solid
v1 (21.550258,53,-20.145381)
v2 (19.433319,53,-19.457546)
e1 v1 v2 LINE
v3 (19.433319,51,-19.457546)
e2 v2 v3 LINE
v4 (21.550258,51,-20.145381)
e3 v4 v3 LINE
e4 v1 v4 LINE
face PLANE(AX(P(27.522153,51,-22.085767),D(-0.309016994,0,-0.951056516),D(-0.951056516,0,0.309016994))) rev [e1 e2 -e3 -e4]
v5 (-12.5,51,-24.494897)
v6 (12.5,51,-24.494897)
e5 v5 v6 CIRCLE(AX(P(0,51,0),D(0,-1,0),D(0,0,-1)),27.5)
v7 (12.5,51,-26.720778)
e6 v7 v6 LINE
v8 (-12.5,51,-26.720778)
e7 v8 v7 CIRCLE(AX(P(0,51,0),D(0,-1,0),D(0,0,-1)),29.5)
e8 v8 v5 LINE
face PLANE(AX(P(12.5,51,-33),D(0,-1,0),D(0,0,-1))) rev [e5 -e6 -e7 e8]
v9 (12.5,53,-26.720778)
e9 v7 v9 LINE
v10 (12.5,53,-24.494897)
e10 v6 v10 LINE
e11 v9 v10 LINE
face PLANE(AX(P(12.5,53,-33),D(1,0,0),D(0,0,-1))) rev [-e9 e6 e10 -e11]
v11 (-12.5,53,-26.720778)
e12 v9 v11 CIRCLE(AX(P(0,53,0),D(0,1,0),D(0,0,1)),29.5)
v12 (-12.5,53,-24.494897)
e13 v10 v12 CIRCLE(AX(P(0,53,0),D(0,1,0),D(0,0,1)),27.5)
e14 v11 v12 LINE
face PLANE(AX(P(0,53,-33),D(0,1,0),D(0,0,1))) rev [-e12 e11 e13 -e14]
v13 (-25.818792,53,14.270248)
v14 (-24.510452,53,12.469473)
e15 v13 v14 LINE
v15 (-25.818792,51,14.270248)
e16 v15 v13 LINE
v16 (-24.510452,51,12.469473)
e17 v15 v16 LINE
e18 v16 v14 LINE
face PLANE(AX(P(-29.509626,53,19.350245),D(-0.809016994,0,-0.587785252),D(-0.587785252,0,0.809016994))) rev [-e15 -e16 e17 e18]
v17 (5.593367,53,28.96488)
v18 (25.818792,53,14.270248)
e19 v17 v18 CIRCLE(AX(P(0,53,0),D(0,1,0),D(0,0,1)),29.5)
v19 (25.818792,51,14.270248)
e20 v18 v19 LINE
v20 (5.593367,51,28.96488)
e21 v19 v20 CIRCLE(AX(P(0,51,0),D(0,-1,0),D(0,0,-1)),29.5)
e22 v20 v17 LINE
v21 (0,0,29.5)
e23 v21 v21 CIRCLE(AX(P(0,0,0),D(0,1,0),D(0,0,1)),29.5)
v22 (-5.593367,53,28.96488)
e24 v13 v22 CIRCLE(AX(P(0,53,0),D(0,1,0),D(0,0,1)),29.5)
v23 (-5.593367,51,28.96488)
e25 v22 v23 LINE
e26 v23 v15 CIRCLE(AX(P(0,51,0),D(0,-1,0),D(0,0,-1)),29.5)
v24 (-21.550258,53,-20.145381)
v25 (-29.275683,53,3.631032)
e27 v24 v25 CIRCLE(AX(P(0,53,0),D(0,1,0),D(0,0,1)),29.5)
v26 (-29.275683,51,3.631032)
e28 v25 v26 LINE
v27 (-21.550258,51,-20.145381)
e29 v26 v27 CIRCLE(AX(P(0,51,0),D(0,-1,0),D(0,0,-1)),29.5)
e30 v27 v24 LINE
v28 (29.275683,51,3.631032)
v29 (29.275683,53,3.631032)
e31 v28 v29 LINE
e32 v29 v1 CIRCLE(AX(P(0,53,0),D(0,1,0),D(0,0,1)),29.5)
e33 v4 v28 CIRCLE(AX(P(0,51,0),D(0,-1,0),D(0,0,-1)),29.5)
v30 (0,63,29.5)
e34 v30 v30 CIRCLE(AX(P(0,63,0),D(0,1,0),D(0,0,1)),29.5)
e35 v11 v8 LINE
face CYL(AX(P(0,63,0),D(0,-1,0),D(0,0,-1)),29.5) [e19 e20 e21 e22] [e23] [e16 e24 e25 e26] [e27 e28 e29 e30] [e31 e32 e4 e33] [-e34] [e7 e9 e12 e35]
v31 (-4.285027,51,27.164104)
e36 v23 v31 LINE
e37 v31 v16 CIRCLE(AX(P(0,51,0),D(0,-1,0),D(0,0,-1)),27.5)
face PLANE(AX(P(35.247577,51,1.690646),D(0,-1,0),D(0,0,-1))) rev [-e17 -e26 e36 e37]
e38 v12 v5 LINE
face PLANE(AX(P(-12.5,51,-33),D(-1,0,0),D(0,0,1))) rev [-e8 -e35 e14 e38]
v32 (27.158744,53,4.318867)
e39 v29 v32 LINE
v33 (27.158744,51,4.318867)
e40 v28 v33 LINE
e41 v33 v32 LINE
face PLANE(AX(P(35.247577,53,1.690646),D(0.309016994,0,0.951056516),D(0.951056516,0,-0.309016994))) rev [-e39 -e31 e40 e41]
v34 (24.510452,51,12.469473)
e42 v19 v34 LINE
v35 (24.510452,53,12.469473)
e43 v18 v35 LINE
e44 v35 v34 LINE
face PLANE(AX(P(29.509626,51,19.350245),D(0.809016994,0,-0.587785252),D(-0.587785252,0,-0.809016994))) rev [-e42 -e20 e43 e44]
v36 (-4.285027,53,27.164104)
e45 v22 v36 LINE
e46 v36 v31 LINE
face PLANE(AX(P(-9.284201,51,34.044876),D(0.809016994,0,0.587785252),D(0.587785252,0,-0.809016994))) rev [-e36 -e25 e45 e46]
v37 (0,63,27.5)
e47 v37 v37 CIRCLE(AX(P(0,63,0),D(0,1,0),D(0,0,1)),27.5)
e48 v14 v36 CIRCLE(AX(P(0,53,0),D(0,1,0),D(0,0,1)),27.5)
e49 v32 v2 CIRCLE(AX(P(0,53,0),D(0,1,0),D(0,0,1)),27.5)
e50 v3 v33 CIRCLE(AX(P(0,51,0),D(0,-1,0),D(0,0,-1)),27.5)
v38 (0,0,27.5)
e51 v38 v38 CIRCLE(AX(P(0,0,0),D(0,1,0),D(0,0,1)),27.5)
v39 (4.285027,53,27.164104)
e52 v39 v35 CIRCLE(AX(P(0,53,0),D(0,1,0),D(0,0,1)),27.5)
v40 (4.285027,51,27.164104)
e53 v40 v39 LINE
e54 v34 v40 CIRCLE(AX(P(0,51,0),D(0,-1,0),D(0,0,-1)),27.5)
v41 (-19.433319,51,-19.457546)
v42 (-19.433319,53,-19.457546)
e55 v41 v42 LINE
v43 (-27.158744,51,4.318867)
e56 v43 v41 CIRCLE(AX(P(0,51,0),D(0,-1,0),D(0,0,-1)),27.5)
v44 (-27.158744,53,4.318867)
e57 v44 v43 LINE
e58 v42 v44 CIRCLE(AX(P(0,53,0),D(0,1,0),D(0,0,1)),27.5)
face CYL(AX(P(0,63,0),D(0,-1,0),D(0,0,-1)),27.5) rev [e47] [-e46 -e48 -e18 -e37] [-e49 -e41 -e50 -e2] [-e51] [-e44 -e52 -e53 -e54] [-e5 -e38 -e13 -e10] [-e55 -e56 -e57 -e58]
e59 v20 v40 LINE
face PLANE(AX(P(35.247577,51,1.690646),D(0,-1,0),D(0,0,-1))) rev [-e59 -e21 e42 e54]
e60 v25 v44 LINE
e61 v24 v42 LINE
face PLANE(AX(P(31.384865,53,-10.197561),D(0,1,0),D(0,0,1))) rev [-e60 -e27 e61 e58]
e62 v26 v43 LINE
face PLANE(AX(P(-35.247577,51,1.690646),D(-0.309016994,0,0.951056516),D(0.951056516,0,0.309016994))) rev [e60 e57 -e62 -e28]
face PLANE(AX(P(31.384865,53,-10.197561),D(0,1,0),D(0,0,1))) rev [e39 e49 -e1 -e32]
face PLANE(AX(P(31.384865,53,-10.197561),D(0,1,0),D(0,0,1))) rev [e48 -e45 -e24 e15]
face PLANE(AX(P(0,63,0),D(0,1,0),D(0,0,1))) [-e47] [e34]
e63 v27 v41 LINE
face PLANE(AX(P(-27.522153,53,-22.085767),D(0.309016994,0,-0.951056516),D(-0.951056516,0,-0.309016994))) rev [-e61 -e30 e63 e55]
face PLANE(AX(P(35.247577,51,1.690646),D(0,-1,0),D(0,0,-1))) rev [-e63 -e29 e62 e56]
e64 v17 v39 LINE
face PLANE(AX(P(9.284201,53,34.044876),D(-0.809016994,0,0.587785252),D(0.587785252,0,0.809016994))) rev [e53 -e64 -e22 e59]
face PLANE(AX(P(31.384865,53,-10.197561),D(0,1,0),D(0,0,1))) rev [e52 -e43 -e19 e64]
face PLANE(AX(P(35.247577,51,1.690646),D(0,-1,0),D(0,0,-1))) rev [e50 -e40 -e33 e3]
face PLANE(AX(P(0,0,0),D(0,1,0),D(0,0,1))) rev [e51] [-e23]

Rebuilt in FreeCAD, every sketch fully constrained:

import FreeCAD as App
import Part
import Sketcher
from FreeCAD import Vector

doc = App.newDocument("Part")
body = doc.addObject("PartDesign::Body", "Body")

# Sketch on XZ plane
sketch1 = body.newObject("Sketcher::SketchObject", "Sketch")
sketch1.AttachmentSupport = (doc.getObject("XZ_Plane"), [""])
sketch1.MapMode = "FlatFace"
sketch1.addGeometry(Part.Circle(Vector(0, 0, 0), Vector(0, 0, 1), 29.5), False)
sketch1.addGeometry(Part.Circle(Vector(0, 0, 0), Vector(0, 0, 1), 27.5), False)
sketch1.addConstraint(Sketcher.Constraint("Coincident", 0, 3, -1, 1))
sketch1.addConstraint(Sketcher.Constraint("Coincident", 1, 3, -1, 1))
sketch1.addConstraint(Sketcher.Constraint("Diameter", 0, 59.0))
sketch1.addConstraint(Sketcher.Constraint("Diameter", 1, 55.0))
pad1 = body.newObject("PartDesign::Pad", "Pad")
pad1.Profile = sketch1
pad1.Length = 63
pad1.Reversed = True

# Sketch on XY plane
sketch2 = body.newObject("Sketcher::SketchObject", "Sketch001")
sketch2.AttachmentSupport = (doc.getObject("XY_Plane"), [""])
sketch2.MapMode = "FlatFace"
sketch2.addGeometry(Part.LineSegment(Vector(12.5, 53, 0), Vector(-12.5, 53, 0)), False)
sketch2.addGeometry(Part.LineSegment(Vector(-12.5, 53, 0), Vector(-12.5, 51, 0)), False)
sketch2.addGeometry(Part.LineSegment(Vector(-12.5, 51, 0), Vector(12.5, 51, 0)), False)
sketch2.addGeometry(Part.LineSegment(Vector(12.5, 51, 0), Vector(12.5, 53, 0)), False)
sketch2.addConstraint(Sketcher.Constraint("Coincident", 0, 2, 1, 1))
sketch2.addConstraint(Sketcher.Constraint("Coincident", 1, 2, 2, 1))
sketch2.addConstraint(Sketcher.Constraint("Coincident", 2, 2, 3, 1))
sketch2.addConstraint(Sketcher.Constraint("Coincident", 3, 2, 0, 1))
sketch2.addConstraint(Sketcher.Constraint("Horizontal", 0))
sketch2.addConstraint(Sketcher.Constraint("Vertical", 1))
sketch2.addConstraint(Sketcher.Constraint("Horizontal", 2))
sketch2.addConstraint(Sketcher.Constraint("Vertical", 3))
sketch2.addConstraint(Sketcher.Constraint("DistanceX", 0, 2, 0, 1, 25.0))
sketch2.addConstraint(Sketcher.Constraint("DistanceY", 1, 2, 1, 1, 2.0))
sketch2.addConstraint(Sketcher.Constraint("DistanceY", -1, 1, 0, 2, 53.0))
sketch2.addConstraint(Sketcher.Constraint("DistanceX", 0, 2, -1, 1, 12.5))
pocket1 = body.newObject("PartDesign::Pocket", "Pocket")
pocket1.Profile = sketch2
pocket1.Length = 33
doc.recompute()

polarpattern = body.newObject("PartDesign::PolarPattern", "PolarPattern")
polarpattern.Originals = [pocket1]
polarpattern.Axis = (doc.getObject("Y_Axis"), [""])
polarpattern.Angle = 360
polarpattern.Occurrences = 5
body.Tip = polarpattern

doc.recompute()
